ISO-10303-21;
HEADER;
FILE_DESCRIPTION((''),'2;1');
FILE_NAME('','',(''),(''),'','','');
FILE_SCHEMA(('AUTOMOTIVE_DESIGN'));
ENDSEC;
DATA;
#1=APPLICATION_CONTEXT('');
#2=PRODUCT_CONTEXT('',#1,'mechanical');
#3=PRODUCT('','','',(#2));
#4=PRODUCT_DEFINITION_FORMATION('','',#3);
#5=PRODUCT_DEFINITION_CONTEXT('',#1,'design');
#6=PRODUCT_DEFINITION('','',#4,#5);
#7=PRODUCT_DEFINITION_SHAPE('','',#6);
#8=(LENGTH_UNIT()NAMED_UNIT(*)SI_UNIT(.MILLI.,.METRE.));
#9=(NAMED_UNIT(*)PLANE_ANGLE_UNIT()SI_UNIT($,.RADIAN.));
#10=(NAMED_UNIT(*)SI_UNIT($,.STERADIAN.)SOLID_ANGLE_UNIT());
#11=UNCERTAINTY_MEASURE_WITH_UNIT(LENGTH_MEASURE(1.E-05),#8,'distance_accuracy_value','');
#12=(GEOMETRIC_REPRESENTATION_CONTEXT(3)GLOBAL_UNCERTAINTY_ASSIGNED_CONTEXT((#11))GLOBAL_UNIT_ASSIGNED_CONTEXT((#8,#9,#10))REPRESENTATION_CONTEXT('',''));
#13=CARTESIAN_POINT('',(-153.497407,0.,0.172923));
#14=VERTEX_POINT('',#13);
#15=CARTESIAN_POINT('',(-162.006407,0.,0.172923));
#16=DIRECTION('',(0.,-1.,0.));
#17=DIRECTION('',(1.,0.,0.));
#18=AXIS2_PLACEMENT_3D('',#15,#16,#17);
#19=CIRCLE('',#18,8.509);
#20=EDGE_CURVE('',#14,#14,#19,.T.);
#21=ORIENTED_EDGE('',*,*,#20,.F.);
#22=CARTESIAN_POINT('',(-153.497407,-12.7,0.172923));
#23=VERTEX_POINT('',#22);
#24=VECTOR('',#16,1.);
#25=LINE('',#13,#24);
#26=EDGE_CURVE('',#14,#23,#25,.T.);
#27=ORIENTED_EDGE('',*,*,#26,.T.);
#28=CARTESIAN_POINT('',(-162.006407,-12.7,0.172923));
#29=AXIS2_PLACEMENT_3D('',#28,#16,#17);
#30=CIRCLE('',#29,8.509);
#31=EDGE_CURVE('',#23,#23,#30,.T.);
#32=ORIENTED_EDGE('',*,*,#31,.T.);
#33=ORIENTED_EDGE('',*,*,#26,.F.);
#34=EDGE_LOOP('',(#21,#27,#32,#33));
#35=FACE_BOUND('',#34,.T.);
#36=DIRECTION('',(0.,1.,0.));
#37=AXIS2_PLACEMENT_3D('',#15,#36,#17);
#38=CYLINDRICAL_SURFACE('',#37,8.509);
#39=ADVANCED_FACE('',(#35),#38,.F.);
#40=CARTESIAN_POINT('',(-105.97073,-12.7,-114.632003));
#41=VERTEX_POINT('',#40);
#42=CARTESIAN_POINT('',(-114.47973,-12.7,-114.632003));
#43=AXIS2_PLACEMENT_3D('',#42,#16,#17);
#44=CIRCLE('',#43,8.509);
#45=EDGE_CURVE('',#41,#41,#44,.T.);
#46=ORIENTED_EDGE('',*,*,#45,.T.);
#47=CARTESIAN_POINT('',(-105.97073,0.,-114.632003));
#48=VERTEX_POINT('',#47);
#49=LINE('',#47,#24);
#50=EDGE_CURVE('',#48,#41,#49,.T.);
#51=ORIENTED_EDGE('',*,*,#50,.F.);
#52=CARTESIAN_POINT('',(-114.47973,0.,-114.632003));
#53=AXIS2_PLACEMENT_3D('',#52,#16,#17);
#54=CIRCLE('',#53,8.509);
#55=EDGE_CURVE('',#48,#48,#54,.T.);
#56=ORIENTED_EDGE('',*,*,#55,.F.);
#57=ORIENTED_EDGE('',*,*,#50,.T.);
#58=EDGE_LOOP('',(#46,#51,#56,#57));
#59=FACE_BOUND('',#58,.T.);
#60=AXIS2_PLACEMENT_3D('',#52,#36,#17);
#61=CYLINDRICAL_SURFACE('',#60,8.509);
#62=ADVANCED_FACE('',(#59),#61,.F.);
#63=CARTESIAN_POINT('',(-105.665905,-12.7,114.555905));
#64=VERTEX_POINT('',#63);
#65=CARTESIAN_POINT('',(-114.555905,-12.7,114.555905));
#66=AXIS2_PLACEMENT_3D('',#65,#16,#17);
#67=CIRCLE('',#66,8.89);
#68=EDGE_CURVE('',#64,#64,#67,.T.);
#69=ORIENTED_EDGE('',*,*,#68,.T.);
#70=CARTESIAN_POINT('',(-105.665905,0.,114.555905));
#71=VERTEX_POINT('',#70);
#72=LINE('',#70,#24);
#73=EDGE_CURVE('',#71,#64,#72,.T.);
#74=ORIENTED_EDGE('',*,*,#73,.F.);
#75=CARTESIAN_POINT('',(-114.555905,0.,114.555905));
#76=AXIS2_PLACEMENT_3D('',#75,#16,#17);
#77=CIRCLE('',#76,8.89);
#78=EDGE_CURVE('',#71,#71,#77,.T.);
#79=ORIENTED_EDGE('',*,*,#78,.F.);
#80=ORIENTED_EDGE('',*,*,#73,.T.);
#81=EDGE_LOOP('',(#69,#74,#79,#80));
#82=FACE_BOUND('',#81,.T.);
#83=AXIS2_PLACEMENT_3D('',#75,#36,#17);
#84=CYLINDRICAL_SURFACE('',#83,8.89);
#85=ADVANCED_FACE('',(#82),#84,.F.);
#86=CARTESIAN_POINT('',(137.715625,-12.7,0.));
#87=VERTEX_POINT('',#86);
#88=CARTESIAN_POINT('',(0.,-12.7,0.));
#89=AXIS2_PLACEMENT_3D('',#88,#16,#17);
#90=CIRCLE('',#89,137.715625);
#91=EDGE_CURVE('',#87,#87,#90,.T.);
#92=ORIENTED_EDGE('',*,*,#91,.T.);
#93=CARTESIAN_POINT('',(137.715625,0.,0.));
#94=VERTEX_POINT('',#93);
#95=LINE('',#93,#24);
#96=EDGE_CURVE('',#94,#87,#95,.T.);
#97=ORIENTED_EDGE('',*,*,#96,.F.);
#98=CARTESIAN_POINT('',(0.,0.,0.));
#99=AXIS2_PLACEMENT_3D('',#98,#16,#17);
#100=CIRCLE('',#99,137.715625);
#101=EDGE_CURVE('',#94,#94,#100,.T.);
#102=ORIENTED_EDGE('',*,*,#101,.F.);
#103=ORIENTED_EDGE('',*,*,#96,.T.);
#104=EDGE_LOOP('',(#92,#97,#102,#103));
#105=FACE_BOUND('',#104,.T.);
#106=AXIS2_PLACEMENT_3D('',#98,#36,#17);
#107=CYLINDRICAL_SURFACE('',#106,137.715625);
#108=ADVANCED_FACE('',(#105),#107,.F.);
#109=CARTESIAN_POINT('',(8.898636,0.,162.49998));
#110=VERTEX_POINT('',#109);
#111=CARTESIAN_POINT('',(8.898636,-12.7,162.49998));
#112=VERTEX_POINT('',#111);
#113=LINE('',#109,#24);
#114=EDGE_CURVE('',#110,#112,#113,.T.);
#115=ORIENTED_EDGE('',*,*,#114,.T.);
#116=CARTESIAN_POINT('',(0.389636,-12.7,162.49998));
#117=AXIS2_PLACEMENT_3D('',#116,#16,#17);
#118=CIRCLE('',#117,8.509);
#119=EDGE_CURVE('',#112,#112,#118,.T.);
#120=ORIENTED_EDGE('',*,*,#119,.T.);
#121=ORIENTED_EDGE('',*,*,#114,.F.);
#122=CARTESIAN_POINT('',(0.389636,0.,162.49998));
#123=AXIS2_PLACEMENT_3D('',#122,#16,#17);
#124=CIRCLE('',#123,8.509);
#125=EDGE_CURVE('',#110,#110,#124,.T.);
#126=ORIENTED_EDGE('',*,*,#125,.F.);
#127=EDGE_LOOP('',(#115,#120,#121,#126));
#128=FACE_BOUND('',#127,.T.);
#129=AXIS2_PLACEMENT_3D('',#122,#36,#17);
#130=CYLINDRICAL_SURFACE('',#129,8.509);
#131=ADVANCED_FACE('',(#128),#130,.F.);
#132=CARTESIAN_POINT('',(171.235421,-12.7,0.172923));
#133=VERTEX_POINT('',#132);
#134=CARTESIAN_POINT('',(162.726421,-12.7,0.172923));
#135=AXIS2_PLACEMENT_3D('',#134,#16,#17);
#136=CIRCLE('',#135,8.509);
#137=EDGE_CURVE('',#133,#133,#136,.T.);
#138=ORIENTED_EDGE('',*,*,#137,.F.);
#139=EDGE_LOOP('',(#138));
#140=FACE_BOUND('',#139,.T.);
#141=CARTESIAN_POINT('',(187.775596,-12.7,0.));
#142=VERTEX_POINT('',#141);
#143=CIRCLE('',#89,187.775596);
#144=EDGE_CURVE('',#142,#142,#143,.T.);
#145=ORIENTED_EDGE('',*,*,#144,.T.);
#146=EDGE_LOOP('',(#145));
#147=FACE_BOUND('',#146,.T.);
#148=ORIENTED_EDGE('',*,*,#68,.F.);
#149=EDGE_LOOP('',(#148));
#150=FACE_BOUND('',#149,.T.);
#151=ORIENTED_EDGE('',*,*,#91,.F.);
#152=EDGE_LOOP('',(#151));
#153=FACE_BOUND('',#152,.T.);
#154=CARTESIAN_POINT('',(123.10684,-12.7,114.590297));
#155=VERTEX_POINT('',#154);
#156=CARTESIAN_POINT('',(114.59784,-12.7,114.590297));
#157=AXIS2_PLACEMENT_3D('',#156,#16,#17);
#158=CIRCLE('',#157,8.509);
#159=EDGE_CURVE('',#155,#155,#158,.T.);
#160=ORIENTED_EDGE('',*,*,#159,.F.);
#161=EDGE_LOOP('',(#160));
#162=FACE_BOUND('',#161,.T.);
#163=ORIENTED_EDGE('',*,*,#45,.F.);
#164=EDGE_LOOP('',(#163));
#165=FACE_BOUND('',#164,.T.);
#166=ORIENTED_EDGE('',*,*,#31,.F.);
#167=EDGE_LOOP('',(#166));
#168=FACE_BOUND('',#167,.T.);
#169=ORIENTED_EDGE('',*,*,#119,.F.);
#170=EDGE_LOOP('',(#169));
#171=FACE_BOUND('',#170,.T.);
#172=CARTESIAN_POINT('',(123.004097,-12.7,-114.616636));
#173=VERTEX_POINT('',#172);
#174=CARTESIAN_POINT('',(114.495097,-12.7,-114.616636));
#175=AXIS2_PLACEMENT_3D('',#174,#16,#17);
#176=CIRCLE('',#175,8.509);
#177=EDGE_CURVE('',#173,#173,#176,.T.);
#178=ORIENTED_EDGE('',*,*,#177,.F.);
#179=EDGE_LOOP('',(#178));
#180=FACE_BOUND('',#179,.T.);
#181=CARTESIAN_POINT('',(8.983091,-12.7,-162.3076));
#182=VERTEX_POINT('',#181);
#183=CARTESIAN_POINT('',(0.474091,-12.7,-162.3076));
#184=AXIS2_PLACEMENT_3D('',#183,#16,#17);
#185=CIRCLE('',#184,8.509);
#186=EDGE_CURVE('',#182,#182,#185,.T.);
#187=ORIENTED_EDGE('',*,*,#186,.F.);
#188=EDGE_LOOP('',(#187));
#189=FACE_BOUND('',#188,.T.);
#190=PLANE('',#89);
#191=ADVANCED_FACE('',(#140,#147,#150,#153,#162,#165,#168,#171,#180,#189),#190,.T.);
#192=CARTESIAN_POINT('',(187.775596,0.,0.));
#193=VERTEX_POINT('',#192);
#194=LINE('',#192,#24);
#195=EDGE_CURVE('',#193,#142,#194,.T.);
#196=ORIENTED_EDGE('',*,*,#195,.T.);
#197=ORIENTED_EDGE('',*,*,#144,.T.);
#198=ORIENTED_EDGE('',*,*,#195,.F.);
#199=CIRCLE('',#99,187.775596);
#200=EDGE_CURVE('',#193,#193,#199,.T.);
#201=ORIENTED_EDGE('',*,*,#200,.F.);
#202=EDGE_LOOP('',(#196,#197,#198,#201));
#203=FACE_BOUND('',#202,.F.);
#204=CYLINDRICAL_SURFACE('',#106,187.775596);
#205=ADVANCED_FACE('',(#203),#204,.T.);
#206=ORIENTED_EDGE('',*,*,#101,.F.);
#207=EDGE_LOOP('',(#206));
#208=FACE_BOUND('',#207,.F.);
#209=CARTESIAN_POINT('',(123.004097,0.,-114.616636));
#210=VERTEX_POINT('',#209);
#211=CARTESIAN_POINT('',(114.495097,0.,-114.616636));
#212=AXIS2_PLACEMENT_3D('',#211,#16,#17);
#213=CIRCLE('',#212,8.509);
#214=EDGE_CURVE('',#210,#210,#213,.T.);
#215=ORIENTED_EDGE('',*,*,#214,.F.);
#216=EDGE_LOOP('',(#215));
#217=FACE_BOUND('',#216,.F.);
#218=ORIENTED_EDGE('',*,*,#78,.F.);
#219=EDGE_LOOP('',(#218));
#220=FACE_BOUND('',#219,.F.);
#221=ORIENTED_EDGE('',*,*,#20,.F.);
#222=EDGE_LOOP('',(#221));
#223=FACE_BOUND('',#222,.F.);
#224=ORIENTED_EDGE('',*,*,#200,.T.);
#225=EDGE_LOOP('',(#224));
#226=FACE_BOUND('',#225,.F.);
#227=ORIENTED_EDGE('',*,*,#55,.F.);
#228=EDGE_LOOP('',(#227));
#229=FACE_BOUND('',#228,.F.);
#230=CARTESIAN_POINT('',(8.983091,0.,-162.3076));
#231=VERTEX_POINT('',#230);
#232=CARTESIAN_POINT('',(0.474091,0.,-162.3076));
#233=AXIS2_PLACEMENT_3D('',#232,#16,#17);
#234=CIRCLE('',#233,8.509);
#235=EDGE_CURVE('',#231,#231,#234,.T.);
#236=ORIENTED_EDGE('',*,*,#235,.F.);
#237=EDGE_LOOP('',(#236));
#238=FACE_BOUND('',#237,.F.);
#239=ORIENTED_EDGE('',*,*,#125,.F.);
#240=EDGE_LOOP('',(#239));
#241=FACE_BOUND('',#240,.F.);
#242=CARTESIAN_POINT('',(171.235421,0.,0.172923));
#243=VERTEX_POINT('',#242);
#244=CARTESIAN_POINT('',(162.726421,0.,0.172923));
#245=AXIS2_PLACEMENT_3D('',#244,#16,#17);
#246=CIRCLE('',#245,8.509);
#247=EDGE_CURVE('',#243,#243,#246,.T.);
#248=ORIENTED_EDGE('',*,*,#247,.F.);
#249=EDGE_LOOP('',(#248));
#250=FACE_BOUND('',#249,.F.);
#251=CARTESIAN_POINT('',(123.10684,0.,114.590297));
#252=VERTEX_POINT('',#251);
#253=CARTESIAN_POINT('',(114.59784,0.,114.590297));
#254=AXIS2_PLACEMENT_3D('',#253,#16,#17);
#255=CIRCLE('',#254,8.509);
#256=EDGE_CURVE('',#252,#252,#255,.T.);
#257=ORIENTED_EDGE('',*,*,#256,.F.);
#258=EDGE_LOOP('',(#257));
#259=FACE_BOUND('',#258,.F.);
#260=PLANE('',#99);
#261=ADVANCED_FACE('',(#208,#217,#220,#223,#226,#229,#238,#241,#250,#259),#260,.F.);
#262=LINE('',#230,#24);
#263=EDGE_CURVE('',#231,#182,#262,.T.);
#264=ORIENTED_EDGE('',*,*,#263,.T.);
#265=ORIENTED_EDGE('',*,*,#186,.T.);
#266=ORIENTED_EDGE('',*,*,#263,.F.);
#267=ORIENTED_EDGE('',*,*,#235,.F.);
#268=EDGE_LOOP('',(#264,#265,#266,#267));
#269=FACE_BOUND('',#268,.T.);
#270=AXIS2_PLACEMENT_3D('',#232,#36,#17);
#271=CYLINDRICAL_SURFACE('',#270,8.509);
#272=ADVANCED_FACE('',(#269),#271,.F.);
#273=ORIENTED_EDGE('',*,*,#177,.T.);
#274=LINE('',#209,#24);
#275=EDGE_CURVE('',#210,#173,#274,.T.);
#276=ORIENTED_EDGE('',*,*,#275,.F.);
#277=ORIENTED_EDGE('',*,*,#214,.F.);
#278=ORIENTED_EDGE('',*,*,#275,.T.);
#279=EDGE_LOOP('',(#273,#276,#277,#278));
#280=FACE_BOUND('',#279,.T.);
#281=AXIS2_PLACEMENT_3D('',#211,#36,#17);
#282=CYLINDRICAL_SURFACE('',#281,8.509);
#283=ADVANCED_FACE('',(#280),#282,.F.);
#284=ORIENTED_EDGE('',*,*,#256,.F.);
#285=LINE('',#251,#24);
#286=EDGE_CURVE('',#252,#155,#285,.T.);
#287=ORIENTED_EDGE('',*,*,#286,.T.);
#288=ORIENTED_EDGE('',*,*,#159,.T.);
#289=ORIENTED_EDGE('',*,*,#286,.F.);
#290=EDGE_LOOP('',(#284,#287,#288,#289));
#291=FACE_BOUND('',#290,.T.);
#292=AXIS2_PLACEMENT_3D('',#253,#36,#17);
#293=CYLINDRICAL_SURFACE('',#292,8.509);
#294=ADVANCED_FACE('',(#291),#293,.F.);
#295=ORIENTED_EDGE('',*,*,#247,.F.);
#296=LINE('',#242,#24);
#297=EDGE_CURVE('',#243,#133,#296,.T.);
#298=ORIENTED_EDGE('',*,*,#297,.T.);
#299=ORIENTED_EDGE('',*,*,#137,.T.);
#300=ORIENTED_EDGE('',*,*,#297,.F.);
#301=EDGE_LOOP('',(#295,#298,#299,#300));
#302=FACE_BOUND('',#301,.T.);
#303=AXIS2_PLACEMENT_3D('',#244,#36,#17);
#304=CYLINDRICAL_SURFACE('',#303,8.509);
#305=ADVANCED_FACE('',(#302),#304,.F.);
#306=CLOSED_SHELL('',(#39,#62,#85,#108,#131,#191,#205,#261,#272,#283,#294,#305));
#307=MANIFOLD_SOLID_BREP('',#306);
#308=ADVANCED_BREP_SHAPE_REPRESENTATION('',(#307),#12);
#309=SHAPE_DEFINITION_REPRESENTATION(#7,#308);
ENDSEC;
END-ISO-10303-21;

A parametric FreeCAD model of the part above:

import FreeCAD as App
import Part
import Sketcher
from FreeCAD import Vector
Q = App.Units.Quantity

doc = App.newDocument("Part")
body = doc.addObject("PartDesign::Body", "Body")

sketch1 = body.newObject("Sketcher::SketchObject", "Sketch")
sketch1.AttachmentSupport = (doc.getObject("XZ_Plane"), [""])
sketch1.MapMode = "FlatFace"
sketch1.addGeometry([
    Part.Circle(Vector(0, 0, 0), Vector(0, 0, 1), 188),
    Part.Circle(Vector(-114, -115, 0), Vector(0, 0, 1), 9),
    Part.Circle(Vector(0, 0, 0), Vector(0, 0, 1), 138),
    Part.Circle(Vector(0, -162, 0), Vector(0, 0, 1), 9),
    Part.Circle(Vector(114, -115, 0), Vector(0, 0, 1), 9),
    Part.Circle(Vector(-162, 0, 0), Vector(0, 0, 1), 9),
    Part.Circle(Vector(-115, 115, 0), Vector(0, 0, 1), 9),
    Part.Circle(Vector(163, 0, 0), Vector(0, 0, 1), 9),
    Part.Circle(Vector(0, 162, 0), Vector(0, 0, 1), 9),
    Part.Circle(Vector(115, 115, 0), Vector(0, 0, 1), 9),
], False)
sketch1.addConstraint([
    Sketcher.Constraint("Coincident", 0, 3, -1, 1),
    Sketcher.Constraint("Coincident", 2, 3, -1, 1),
    Sketcher.Constraint("Equal", 1, 3),
    Sketcher.Constraint("Equal", 3, 4),
    Sketcher.Constraint("Equal", 4, 5),
    Sketcher.Constraint("Equal", 5, 7),
    Sketcher.Constraint("Equal", 7, 8),
    Sketcher.Constraint("Equal", 8, 9),
    Sketcher.Constraint("Horizontal", 5, 3, 7, 3),
    Sketcher.Constraint("Diameter", 6, Q("0.7 in")),
    Sketcher.Constraint("Diameter", 1, Q("0.67 in")),
    Sketcher.Constraint("Diameter", 2, Q("10.84375 in")),
    Sketcher.Constraint("Diameter", 0, 375.551192),
    Sketcher.Constraint("DistanceY", 3, 3, -1, 1, 162.3076),
    Sketcher.Constraint("DistanceX", 1, 3, -1, 1, 114.47973),
    Sketcher.Constraint("DistanceX", -1, 1, 3, 3, 0.474091),
    Sketcher.Constraint("DistanceX", -1, 1, 7, 3, 162.726421),
    Sketcher.Constraint("DistanceY", -1, 1, 8, 3, 162.49998),
    Sketcher.Constraint("DistanceX", -1, 1, 9, 3, 114.59784),
    Sketcher.Constraint("DistanceY", 4, 3, 5, 3, 114.789559),
    Sketcher.Constraint("DistanceY", 5, 3, 6, 3, 114.382982),
    Sketcher.Constraint("DistanceY", 1, 3, 6, 3, 229.187908),
    Sketcher.Constraint("DistanceX", 6, 3, 8, 3, 114.945541),
    Sketcher.Constraint("DistanceY", 1, 3, -1, 1, 114.632003),
    Sketcher.Constraint("DistanceX", -1, 1, 4, 3, 114.495097),
    Sketcher.Constraint("DistanceX", 5, 3, -1, 1, 162.006407),
    Sketcher.Constraint("DistanceX", 6, 3, -1, 1, 114.555905),
    Sketcher.Constraint("DistanceY", -1, 1, 9, 3, 114.590297),
])
pad1 = body.newObject("PartDesign::Pad", "Pad")
pad1.Profile = sketch1
pad1.Length = Q("0.5 in")

doc.recompute()
